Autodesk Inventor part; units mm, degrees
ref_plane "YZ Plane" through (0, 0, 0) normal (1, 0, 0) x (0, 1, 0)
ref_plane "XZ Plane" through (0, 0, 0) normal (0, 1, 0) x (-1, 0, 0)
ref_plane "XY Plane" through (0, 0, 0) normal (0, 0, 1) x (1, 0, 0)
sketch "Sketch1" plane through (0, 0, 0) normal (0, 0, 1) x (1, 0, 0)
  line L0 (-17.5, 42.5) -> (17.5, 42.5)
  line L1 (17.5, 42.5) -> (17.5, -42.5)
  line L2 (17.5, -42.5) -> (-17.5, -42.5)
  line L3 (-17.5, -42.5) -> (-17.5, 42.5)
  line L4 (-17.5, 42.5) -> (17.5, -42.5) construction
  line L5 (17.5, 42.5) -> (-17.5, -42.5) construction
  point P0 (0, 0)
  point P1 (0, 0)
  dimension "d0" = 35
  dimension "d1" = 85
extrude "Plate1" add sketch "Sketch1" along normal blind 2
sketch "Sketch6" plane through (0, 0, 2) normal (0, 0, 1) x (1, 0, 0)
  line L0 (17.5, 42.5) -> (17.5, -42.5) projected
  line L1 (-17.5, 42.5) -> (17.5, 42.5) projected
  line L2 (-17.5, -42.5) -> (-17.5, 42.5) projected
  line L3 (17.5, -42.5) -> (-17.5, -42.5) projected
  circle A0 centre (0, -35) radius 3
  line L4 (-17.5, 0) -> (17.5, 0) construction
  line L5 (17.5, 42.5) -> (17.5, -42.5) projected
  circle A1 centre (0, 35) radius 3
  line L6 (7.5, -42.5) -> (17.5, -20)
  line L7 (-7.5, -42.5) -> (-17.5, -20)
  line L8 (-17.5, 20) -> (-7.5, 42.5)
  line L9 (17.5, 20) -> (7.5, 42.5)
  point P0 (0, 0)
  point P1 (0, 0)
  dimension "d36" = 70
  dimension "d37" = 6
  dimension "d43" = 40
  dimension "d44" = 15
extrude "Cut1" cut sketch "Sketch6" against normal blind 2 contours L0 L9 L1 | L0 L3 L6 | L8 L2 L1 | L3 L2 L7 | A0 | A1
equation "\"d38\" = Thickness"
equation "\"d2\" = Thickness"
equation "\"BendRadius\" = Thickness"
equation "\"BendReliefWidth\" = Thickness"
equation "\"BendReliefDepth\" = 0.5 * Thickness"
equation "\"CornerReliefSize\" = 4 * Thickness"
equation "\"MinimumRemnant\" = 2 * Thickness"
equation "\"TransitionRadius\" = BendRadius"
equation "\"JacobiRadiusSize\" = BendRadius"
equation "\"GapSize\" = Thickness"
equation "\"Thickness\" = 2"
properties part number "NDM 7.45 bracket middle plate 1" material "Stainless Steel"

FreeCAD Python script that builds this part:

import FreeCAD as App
import Part
import Sketcher
from FreeCAD import Vector

doc = App.newDocument("Part")
body = doc.addObject("PartDesign::Body", "Body")

sketch1 = doc.addObject("Sketcher::SketchObject", "Sketch")
body.addObject(sketch1)
sketch1.AttachmentSupport = (doc.XY_Plane, [""])
sketch1.MapMode = "FlatFace"
sketch1.addGeometry(Part.LineSegment(Vector(18, 42, 0), Vector(-18, 42, 0)), False)
sketch1.addGeometry(Part.LineSegment(Vector(-18, 42, 0), Vector(-18, -42, 0)), False)
sketch1.addGeometry(Part.LineSegment(Vector(-18, -42, 0), Vector(18, -42, 0)), False)
sketch1.addGeometry(Part.LineSegment(Vector(18, -42, 0), Vector(18, 42, 0)), False)
sketch1.addConstraint(Sketcher.Constraint("Coincident", 0, 2, 1, 1))
sketch1.addConstraint(Sketcher.Constraint("Coincident", 1, 2, 2, 1))
sketch1.addConstraint(Sketcher.Constraint("Coincident", 2, 2, 3, 1))
sketch1.addConstraint(Sketcher.Constraint("Coincident", 3, 2, 0, 1))
sketch1.addConstraint(Sketcher.Constraint("Horizontal", 0))
sketch1.addConstraint(Sketcher.Constraint("Vertical", 1))
sketch1.addConstraint(Sketcher.Constraint("Horizontal", 2))
sketch1.addConstraint(Sketcher.Constraint("Vertical", 3))
sketch1.addConstraint(Sketcher.Constraint("Symmetric", 0, 2, 2, 2, -1, 1))
sketch1.addConstraint(Sketcher.Constraint("DistanceX", 0, 2, 0, 1, 35.0))
sketch1.addConstraint(Sketcher.Constraint("DistanceY", 1, 2, 1, 1, 85.0))
pad1 = doc.addObject("PartDesign::Pad", "Pad")
body.addObject(pad1)
pad1.Profile = sketch1
pad1.Length = 2

sketch2 = doc.addObject("Sketcher::SketchObject", "Sketch001")
body.addObject(sketch2)
sketch2.AttachmentSupport = (doc.XY_Plane, [""])
sketch2.MapMode = "FlatFace"
sketch2.AttachmentOffset = App.Placement(Vector(0, 0, 2), App.Rotation())
sketch2.addGeometry(Part.LineSegment(Vector(17.5, 20, 0), Vector(17.5, 42.5, 0)), False)
sketch2.addGeometry(Part.LineSegment(Vector(17.5, 42.5, 0), Vector(7.5, 42.5, 0)), False)
sketch2.addGeometry(Part.LineSegment(Vector(7.5, 42.5, 0), Vector(17.5, 20, 0)), False)
sketch2.addGeometry(Part.LineSegment(Vector(17.5, -42.5, 0), Vector(17.5, -20, 0)), False)
sketch2.addGeometry(Part.LineSegment(Vector(17.5, -20, 0), Vector(7.5, -42.5, 0)), False)
sketch2.addGeometry(Part.LineSegment(Vector(7.5, -42.5, 0), Vector(17.5, -42.5, 0)), False)
sketch2.addGeometry(Part.LineSegment(Vector(-17.5, 20, 0), Vector(-7.5, 42.5, 0)), False)
sketch2.addGeometry(Part.LineSegment(Vector(-7.5, 42.5, 0), Vector(-17.5, 42.5, 0)), False)
sketch2.addGeometry(Part.LineSegment(Vector(-17.5, 42.5, 0), Vector(-17.5, 20, 0)), False)
sketch2.addGeometry(Part.LineSegment(Vector(-17.5, -42.5, 0), Vector(-7.5, -42.5, 0)), False)
sketch2.addGeometry(Part.LineSegment(Vector(-7.5, -42.5, 0), Vector(-17.5, -20, 0)), False)
sketch2.addGeometry(Part.LineSegment(Vector(-17.5, -20, 0), Vector(-17.5, -42.5, 0)), False)
sketch2.addGeometry(Part.Circle(Vector(0, -35, 0), Vector(0, 0, 1), 3), False)
sketch2.addGeometry(Part.Circle(Vector(0, 35, 0), Vector(0, 0, 1), 3), False)
sketch2.addConstraint(Sketcher.Constraint("Coincident", 0, 2, 1, 1))
sketch2.addConstraint(Sketcher.Constraint("Coincident", 1, 2, 2, 1))
sketch2.addConstraint(Sketcher.Constraint("Coincident", 2, 2, 0, 1))
sketch2.addConstraint(Sketcher.Constraint("Coincident", 3, 2, 4, 1))
sketch2.addConstraint(Sketcher.Constraint("Coincident", 4, 2, 5, 1))
sketch2.addConstraint(Sketcher.Constraint("Coincident", 5, 2, 3, 1))
sketch2.addConstraint(Sketcher.Constraint("Coincident", 6, 2, 7, 1))
sketch2.addConstraint(Sketcher.Constraint("Coincident", 7, 2, 8, 1))
sketch2.addConstraint(Sketcher.Constraint("Coincident", 8, 2, 6, 1))
sketch2.addConstraint(Sketcher.Constraint("Coincident", 9, 2, 10, 1))
sketch2.addConstraint(Sketcher.Constraint("Coincident", 10, 2, 11, 1))
sketch2.addConstraint(Sketcher.Constraint("Coincident", 11, 2, 9, 1))
sketch2.addConstraint(Sketcher.Constraint("Vertical", 0))
sketch2.addConstraint(Sketcher.Constraint("Horizontal", 1))
sketch2.addConstraint(Sketcher.Constraint("Vertical", 3))
sketch2.addConstraint(Sketcher.Constraint("Horizontal", 5))
sketch2.addConstraint(Sketcher.Constraint("Horizontal", 7))
sketch2.addConstraint(Sketcher.Constraint("Vertical", 8))
sketch2.addConstraint(Sketcher.Constraint("Horizontal", 9))
sketch2.addConstraint(Sketcher.Constraint("Vertical", 11))
sketch2.addConstraint(Sketcher.Constraint("Equal", 12, 13))
sketch2.addConstraint(Sketcher.Constraint("Symmetric", 12, 3, 13, 3, -1, 1))
sketch2.addConstraint(Sketcher.Constraint("Symmetric", 4, 2, 6, 2, -1, 1))
sketch2.addConstraint(Sketcher.Constraint("Symmetric", 3, 2, 8, 2, -1, 1))
sketch2.addConstraint(Sketcher.Constraint("Symmetric", 1, 2, 9, 2, -1, 1))
sketch2.addConstraint(Sketcher.Constraint("Symmetric", 2, 2, 10, 2, -1, 1))
sketch2.addConstraint(Sketcher.Constraint("Symmetric", 1, 2, 6, 2, -2))
sketch2.addConstraint(Sketcher.Constraint("Symmetric", 2, 2, 8, 2, -2))
sketch2.addConstraint(Sketcher.Constraint("PointOnObject", 12, 3, -2))
sketch2.addConstraint(Sketcher.Constraint("Diameter", 12, 6.0))
sketch2.addConstraint(Sketcher.Constraint("DistanceY", 12, 3, 13, 3, 70.0))
sketch2.addConstraint(Sketcher.Constraint("DistanceY", 2, 2, 13, 3, 15.0))
sketch2.addConstraint(Sketcher.Constraint("DistanceX", 6, 2, 1, 2, 15.0))
sketch2.addConstraint(Sketcher.Constraint("DistanceX", 1, 2, 1, 1, 10.0))
sketch2.addConstraint(Sketcher.Constraint("DistanceY", 0, 1, 0, 2, 22.5))
pocket1 = doc.addObject("PartDesign::Pocket", "Pocket")
body.addObject(pocket1)
pocket1.Profile = sketch2
pocket1.Length = 2

doc.recompute()
